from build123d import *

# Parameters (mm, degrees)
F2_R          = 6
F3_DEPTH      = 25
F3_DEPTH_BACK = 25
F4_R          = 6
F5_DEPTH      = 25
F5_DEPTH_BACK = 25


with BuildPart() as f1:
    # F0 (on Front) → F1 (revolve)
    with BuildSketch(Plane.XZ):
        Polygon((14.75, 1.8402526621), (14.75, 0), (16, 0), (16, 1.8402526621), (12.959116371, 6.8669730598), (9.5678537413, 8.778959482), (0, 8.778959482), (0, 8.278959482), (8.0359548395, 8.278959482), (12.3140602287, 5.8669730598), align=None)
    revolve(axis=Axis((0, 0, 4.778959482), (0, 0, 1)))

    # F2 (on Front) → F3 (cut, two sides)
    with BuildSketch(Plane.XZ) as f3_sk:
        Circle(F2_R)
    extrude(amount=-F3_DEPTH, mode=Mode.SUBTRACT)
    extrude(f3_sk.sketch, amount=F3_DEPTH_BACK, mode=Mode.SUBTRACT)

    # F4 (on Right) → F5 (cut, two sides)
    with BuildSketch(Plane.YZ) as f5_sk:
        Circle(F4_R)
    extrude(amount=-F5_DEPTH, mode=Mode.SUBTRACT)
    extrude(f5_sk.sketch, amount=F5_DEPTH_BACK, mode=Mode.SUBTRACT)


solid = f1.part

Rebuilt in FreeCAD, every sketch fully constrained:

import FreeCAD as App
import Part
import Sketcher
from FreeCAD import Vector
Q = App.Units.Quantity

doc = App.newDocument("Part")
body = doc.addObject("PartDesign::Body", "Body")

sketch1 = body.newObject("Sketcher::SketchObject", "Sketch")
sketch1.AttachmentSupport = (doc.getObject("XZ_Plane"), [""])
sketch1.MapMode = "FlatFace"
sketch1.addGeometry(Part.LineSegment(Vector(14.8, 1.8, 0), Vector(14.8, 0, 0)), False)
sketch1.addGeometry(Part.LineSegment(Vector(14.8, 0, 0), Vector(16, 0, 0)), False)
sketch1.addGeometry(Part.LineSegment(Vector(16, 0, 0), Vector(16, 1.8, 0)), False)
sketch1.addGeometry(Part.LineSegment(Vector(16, 1.8, 0), Vector(13, 6.9, 0)), False)
sketch1.addGeometry(Part.LineSegment(Vector(13, 6.9, 0), Vector(9.6, 8.8, 0)), False)
sketch1.addGeometry(Part.LineSegment(Vector(9.6, 8.8, 0), Vector(0, 8.8, 0)), False)
sketch1.addGeometry(Part.LineSegment(Vector(0, 8.8, 0), Vector(0, 8.3, 0)), False)
sketch1.addGeometry(Part.LineSegment(Vector(0, 8.3, 0), Vector(8, 8.3, 0)), False)
sketch1.addGeometry(Part.LineSegment(Vector(8, 8.3, 0), Vector(12.3, 5.9, 0)), False)
sketch1.addGeometry(Part.LineSegment(Vector(12.3, 5.9, 0), Vector(14.8, 1.8, 0)), False)
sketch1.addConstraint(Sketcher.Constraint("Coincident", 0, 2, 1, 1))
sketch1.addConstraint(Sketcher.Constraint("Coincident", 1, 2, 2, 1))
sketch1.addConstraint(Sketcher.Constraint("Coincident", 2, 2, 3, 1))
sketch1.addConstraint(Sketcher.Constraint("Coincident", 3, 2, 4, 1))
sketch1.addConstraint(Sketcher.Constraint("Coincident", 4, 2, 5, 1))
sketch1.addConstraint(Sketcher.Constraint("Coincident", 5, 2, 6, 1))
sketch1.addConstraint(Sketcher.Constraint("Coincident", 6, 2, 7, 1))
sketch1.addConstraint(Sketcher.Constraint("Coincident", 7, 2, 8, 1))
sketch1.addConstraint(Sketcher.Constraint("Coincident", 8, 2, 9, 1))
sketch1.addConstraint(Sketcher.Constraint("Coincident", 9, 2, 0, 1))
sketch1.addConstraint(Sketcher.Constraint("Vertical", 0))
sketch1.addConstraint(Sketcher.Constraint("Horizontal", 1))
sketch1.addConstraint(Sketcher.Constraint("Vertical", 2))
sketch1.addConstraint(Sketcher.Constraint("Horizontal", 5))
sketch1.addConstraint(Sketcher.Constraint("Vertical", 6))
sketch1.addConstraint(Sketcher.Constraint("Horizontal", 7))
sketch1.addConstraint(Sketcher.Constraint("PointOnObject", 0, 2, -1))
sketch1.addConstraint(Sketcher.Constraint("PointOnObject", 5, 2, -2))
sketch1.addConstraint(Sketcher.Constraint("Parallel", 4, 8))
sketch1.addConstraint(Sketcher.Constraint("Parallel", 3, 9))
sketch1.addConstraint(Sketcher.Constraint("Horizontal", 2, 2, 9, 2))
sketch1.addConstraint(Sketcher.Constraint("DistanceY", 6, 2, 6, 1, Q("0.5 mm")))
sketch1.addConstraint(Sketcher.Constraint("DistanceX", -1, 1, 1, 2, Q("16 mm")))
sketch1.addConstraint(Sketcher.Constraint("DistanceY", 8, 2, 3, 2, Q("1 mm")))
sketch1.addConstraint(Sketcher.Constraint("DistanceX", 1, 1, 1, 2, Q("1.25 mm")))
sketch1.addConstraint(Sketcher.Constraint("DistanceX", 7, 2, 4, 2, Q("1.531899 mm")))
sketch1.addConstraint(Sketcher.Constraint("DistanceX", 5, 2, 5, 1, Q("9.567854 mm")))
sketch1.addConstraint(Sketcher.Constraint("DistanceY", 0, 2, 0, 1, Q("1.840253 mm")))
sketch1.addConstraint(Sketcher.Constraint("DistanceY", -1, 1, 4, 2, Q("8.778959 mm")))
sketch1.addConstraint(Sketcher.Constraint("DistanceX", -1, 1, 8, 2, Q("12.31406 mm")))
revolution = body.newObject("PartDesign::Revolution", "Revolution")
revolution.Profile = sketch1
revolution.ReferenceAxis = (sketch1, ["V_Axis"])
revolution.Angle = 360

sketch2 = body.newObject("Sketcher::SketchObject", "Sketch001")
sketch2.AttachmentSupport = (doc.getObject("XZ_Plane"), [""])
sketch2.MapMode = "FlatFace"
sketch2.addGeometry(Part.Circle(Vector(0, 0, 0), Vector(0, 0, 1), 6), False)
sketch2.addConstraint(Sketcher.Constraint("Coincident", 0, 3, -1, 1))
sketch2.addConstraint(Sketcher.Constraint("Diameter", 0, Q("12 mm")))
pocket1 = body.newObject("PartDesign::Pocket", "Pocket")
pocket1.Profile = sketch2
pocket1.Type = "ThroughAll"
pocket1.Midplane = True

sketch3 = body.newObject("Sketcher::SketchObject", "Sketch002")
sketch3.AttachmentSupport = (doc.getObject("YZ_Plane"), [""])
sketch3.MapMode = "FlatFace"
sketch3.addGeometry(Part.Circle(Vector(0, 0, 0), Vector(0, 0, 1), 6), False)
sketch3.addConstraint(Sketcher.Constraint("Coincident", 0, 3, -1, 1))
sketch3.addConstraint(Sketcher.Constraint("Diameter", 0, Q("12 mm")))
pocket2 = body.newObject("PartDesign::Pocket", "Pocket001")
pocket2.Profile = sketch3
pocket2.Type = "ThroughAll"
pocket2.Midplane = True

doc.recompute()
